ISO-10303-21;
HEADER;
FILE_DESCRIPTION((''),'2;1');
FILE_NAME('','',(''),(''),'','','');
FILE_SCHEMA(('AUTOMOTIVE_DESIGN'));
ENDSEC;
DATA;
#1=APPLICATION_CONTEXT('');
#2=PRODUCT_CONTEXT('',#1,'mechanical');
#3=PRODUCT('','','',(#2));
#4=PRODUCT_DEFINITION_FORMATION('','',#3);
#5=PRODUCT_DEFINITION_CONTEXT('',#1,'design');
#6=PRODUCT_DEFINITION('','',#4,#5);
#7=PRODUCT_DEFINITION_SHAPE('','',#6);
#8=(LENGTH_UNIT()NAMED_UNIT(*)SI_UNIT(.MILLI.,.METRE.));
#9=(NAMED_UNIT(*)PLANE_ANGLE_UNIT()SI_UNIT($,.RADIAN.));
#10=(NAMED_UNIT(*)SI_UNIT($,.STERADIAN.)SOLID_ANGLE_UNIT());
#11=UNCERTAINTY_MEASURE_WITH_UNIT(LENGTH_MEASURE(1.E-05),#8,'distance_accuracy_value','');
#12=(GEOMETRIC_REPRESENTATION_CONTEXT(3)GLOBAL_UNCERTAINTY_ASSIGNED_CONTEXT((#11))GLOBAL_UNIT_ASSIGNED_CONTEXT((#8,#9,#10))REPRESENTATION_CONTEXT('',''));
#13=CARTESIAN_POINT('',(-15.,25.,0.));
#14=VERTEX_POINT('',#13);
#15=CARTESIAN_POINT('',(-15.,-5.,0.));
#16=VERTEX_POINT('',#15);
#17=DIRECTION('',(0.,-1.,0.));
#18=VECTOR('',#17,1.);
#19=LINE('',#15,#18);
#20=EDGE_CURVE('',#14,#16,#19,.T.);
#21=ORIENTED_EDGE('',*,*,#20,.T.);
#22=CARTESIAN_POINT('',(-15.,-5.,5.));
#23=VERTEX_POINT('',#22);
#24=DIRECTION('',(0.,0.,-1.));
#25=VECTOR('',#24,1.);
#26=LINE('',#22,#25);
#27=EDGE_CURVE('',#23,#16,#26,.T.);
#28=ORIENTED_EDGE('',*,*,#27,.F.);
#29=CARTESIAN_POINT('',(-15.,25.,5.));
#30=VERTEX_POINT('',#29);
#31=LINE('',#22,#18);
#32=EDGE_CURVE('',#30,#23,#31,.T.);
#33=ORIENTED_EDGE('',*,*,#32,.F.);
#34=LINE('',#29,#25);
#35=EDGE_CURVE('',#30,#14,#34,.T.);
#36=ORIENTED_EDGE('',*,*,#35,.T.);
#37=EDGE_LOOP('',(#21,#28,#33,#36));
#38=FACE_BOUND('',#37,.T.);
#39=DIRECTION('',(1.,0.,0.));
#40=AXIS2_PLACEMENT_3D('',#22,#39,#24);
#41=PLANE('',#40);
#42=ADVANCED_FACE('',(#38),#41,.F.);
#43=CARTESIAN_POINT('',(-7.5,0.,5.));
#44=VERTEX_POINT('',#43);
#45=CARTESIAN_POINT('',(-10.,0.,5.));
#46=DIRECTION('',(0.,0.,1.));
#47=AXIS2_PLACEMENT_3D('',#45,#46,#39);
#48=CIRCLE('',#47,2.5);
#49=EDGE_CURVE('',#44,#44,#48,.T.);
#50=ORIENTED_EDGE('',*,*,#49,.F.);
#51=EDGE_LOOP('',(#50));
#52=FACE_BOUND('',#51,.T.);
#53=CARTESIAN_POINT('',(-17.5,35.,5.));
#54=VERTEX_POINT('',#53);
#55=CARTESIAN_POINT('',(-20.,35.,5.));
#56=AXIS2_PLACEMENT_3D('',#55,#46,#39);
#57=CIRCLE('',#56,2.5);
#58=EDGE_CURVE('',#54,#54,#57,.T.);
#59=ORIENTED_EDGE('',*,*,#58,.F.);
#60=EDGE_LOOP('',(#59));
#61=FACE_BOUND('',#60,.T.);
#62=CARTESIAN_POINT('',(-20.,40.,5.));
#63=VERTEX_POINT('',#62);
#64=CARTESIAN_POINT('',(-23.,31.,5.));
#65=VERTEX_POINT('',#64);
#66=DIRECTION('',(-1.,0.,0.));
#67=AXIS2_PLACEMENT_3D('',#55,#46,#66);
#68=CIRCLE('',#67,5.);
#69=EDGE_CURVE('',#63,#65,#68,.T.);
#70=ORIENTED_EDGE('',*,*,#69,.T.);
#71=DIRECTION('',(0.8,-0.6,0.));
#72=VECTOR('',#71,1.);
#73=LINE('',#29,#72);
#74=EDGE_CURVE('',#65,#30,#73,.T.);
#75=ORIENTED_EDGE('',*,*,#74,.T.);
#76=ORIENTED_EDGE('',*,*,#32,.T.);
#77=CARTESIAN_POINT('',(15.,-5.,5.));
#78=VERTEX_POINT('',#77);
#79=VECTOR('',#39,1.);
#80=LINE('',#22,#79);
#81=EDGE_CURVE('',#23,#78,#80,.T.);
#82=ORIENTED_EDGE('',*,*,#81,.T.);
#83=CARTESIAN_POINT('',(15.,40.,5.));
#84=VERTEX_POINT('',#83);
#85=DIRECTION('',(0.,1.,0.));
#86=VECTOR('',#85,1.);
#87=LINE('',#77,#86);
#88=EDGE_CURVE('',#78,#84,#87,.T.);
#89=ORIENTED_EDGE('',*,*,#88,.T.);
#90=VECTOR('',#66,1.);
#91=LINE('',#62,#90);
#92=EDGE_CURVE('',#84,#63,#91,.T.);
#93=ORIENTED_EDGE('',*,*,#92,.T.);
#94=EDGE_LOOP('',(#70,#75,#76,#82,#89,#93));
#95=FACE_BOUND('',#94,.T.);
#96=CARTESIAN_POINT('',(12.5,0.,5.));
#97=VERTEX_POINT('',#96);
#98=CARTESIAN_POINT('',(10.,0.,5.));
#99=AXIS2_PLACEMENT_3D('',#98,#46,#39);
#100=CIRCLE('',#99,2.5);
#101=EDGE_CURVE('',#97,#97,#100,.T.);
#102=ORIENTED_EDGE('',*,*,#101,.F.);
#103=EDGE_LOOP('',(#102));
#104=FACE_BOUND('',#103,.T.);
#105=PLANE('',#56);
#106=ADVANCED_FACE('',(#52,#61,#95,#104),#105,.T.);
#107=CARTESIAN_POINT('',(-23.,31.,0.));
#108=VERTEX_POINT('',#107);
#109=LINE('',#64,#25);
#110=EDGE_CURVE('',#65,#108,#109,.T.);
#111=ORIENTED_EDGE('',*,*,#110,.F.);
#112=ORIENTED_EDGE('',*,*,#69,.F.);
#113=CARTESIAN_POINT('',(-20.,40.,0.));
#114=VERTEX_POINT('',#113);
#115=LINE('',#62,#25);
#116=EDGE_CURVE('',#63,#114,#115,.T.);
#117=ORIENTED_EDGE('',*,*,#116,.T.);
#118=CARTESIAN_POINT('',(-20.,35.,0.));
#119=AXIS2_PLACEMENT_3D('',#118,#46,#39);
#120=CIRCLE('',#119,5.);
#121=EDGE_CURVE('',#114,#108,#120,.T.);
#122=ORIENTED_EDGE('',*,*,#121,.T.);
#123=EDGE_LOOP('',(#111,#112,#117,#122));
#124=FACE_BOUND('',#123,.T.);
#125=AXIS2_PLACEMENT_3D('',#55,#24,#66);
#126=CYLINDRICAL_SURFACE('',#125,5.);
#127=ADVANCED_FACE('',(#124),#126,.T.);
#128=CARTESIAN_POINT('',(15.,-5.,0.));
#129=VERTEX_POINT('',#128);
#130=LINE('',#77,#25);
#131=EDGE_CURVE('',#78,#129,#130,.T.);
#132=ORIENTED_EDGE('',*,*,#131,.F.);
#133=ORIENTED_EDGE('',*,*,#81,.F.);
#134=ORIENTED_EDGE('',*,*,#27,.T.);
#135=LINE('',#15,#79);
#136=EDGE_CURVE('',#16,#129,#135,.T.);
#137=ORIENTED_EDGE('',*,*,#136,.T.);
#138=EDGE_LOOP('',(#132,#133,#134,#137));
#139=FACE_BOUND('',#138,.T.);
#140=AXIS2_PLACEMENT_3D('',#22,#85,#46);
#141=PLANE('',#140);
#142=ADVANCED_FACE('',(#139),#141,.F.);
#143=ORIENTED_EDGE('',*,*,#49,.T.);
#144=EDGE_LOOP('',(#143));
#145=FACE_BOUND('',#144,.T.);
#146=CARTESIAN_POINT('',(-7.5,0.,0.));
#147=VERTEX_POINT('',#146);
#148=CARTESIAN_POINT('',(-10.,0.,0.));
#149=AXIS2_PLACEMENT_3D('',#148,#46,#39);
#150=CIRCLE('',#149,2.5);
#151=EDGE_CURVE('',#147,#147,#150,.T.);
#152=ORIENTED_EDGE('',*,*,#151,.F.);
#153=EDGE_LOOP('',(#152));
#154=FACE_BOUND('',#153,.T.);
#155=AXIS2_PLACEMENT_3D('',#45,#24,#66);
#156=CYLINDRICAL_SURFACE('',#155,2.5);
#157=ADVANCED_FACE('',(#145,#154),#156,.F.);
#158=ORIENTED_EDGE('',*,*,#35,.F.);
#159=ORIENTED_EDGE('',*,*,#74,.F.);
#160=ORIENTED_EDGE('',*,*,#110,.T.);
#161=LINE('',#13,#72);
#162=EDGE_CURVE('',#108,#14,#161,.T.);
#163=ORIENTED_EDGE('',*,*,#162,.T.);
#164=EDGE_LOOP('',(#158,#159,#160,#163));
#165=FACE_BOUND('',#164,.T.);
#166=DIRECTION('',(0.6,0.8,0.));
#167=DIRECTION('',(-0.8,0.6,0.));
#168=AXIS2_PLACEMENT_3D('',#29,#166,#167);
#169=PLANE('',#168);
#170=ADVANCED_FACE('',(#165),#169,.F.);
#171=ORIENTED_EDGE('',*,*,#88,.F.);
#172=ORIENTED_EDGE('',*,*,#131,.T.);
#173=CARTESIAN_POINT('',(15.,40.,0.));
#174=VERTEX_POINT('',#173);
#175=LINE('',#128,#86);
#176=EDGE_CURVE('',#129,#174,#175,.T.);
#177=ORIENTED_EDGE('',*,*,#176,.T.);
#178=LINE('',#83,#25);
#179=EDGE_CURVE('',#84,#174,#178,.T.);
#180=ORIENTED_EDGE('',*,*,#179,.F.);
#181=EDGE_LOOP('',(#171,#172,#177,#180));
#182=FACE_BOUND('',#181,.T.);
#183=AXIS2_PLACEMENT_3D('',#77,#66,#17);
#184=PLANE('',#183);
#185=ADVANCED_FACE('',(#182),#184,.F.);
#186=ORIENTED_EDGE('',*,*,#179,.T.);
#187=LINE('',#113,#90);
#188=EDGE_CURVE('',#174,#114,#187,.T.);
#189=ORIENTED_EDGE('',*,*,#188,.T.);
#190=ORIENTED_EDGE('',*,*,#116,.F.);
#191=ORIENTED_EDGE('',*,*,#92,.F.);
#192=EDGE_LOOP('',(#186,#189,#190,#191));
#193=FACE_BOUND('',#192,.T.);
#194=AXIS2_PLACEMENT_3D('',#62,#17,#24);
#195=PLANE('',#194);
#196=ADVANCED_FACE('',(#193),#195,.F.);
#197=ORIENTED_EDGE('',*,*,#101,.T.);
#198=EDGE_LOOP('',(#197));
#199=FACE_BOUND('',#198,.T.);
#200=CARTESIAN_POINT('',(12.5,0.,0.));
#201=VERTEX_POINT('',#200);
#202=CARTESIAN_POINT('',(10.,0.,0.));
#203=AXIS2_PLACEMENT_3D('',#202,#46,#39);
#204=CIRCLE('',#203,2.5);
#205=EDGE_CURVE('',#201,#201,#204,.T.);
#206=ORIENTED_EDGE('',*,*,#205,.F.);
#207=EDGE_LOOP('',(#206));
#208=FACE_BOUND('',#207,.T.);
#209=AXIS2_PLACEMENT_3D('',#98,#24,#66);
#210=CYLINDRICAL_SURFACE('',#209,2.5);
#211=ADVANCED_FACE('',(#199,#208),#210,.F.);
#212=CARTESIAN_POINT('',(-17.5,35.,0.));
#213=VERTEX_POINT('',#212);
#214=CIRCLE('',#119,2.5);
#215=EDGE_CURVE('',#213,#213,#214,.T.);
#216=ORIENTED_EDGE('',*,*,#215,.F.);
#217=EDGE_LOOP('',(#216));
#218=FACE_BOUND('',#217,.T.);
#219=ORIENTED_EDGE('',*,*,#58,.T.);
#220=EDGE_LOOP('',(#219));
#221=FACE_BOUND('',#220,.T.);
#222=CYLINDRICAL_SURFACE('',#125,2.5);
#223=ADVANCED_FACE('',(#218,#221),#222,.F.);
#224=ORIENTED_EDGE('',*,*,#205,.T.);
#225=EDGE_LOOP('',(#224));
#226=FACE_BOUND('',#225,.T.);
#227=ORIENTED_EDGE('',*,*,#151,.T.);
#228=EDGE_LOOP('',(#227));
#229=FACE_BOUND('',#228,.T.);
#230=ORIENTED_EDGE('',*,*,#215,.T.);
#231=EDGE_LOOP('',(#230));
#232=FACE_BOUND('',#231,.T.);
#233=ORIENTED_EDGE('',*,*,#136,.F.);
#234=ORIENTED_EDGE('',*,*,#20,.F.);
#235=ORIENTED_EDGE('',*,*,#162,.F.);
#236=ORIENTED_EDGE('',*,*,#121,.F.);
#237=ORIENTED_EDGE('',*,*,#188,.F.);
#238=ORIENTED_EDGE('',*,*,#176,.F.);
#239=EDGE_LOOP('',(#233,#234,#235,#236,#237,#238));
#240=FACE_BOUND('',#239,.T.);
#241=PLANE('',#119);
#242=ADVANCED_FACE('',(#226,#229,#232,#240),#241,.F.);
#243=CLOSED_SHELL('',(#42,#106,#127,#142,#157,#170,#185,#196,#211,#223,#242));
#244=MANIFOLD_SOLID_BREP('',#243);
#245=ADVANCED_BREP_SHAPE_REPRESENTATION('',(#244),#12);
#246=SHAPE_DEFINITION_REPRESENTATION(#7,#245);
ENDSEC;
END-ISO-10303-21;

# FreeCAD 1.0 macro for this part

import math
import FreeCAD as App
import Part
import Sketcher

doc = App.newDocument("Part")
body = doc.addObject("PartDesign::Body", "Body")

# Sketch on XY plane
sketch1 = body.newObject("Sketcher::SketchObject", "Sketch")
sketch1.AttachmentSupport = (doc.getObject("XY_Plane"), [""])
sketch1.MapMode = "FlatFace"
sketch1.addGeometry([
    Part.LineSegment(App.Vector(-15, -5, 0), App.Vector(15, -5, 0)),  # 0
    Part.LineSegment(App.Vector(15, -5, 0), App.Vector(15, 40, 0)),  # 1
    Part.LineSegment(App.Vector(15, 40, 0), App.Vector(-20, 40, 0)),  # 2
    Part.ArcOfCircle(Part.Circle(App.Vector(-20, 35, 0), App.Vector(0, 0, 1), 5), math.radians(90), math.radians(180)),  # 3
    Part.ArcOfCircle(Part.Circle(App.Vector(-20, 35, 0), App.Vector(0, 0, 1), 5), math.radians(-180), math.radians(-127)),  # 4
    Part.LineSegment(App.Vector(-23, 31, 0), App.Vector(-15, 25, 0)),  # 5
    Part.LineSegment(App.Vector(-15, 25, 0), App.Vector(-15, -5, 0)),  # 6
    Part.Circle(App.Vector(-10, 0, 0), App.Vector(0, 0, 1), 2.5),  # 7
    Part.Circle(App.Vector(10, 0, 0), App.Vector(0, 0, 1), 2.5),  # 8
    Part.Circle(App.Vector(-20, 35, 0), App.Vector(0, 0, 1), 2.5),  # 9
], False)
sketch1.addConstraint([
    Sketcher.Constraint("Coincident", 0, 2, 1, 1),
    Sketcher.Constraint("Coincident", 1, 2, 2, 1),
    Sketcher.Constraint("Tangent", 2, 2, 3, 1),
    Sketcher.Constraint("Tangent", 3, 2, 4, 1),
    Sketcher.Constraint("Tangent", 4, 2, 5, 1),
    Sketcher.Constraint("Coincident", 5, 2, 6, 1),
    Sketcher.Constraint("Coincident", 6, 2, 0, 1),
    Sketcher.Constraint("Horizontal", 0),
    Sketcher.Constraint("Vertical", 1),
    Sketcher.Constraint("Horizontal", 2),
    Sketcher.Constraint("Vertical", 6),
    Sketcher.Constraint("Coincident", 9, 3, 3, 3),
    Sketcher.Constraint("Equal", 3, 4),
    Sketcher.Constraint("Equal", 7, 8),
    Sketcher.Constraint("Equal", 8, 9),
    Sketcher.Constraint("Symmetric", 7, 3, 8, 3, -1, 1),
    Sketcher.Constraint("PointOnObject", 7, 3, -1),
    Sketcher.Constraint("Horizontal", 9, 3, 3, 2),
    Sketcher.Constraint("Equal", 0, 6),
    Sketcher.Constraint("Diameter", 7, 5.0),
    Sketcher.Constraint("Radius", 3, 5.0),
    Sketcher.Constraint("DistanceX", 0, 1, 0, 2, 30.0),
    Sketcher.Constraint("DistanceX", 2, 2, 2, 1, 35.0),
    Sketcher.Constraint("DistanceY", 1, 1, 1, 2, 45.0),
    Sketcher.Constraint("DistanceX", 3, 3, -1, 1, 20.0),
    Sketcher.Constraint("DistanceY", -1, 1, 3, 3, 35.0),
    Sketcher.Constraint("DistanceX", 7, 3, -1, 1, 10.0),
])
pad1 = body.newObject("PartDesign::Pad", "Pad")
pad1.Profile = sketch1
pad1.Length = 5

doc.recompute()
